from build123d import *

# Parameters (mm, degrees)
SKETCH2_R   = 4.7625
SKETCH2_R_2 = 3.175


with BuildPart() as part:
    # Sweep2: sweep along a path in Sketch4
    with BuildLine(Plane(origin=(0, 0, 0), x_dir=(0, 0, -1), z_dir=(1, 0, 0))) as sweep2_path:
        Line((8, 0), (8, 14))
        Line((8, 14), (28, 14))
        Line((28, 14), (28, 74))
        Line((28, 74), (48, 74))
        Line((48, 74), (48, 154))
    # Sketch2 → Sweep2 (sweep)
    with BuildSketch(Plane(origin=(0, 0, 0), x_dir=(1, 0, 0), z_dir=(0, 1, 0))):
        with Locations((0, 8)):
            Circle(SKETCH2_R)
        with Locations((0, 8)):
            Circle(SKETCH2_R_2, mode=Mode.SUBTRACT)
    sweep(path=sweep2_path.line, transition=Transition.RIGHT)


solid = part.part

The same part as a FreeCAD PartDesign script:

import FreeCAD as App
import Part
import Sketcher

doc = App.newDocument("Part")
body = doc.addObject("PartDesign::Body", "Body")

sketch1 = body.newObject("Sketcher::SketchObject", "Sketch")
sketch1.AttachmentSupport = (doc.getObject("XZ_Plane"), [""])
sketch1.MapMode = "FlatFace"
sketch1.addGeometry(Part.Circle(App.Vector(0, -8, 0), App.Vector(0, 0, 1), 4.8), False)
sketch1.addGeometry(Part.Circle(App.Vector(0, -8, 0), App.Vector(0, 0, 1), 3.2), False)
sketch1.addConstraint(Sketcher.Constraint("Coincident", 1, 3, 0, 3))
sketch1.addConstraint(Sketcher.Constraint("PointOnObject", 0, 3, -2))
sketch1.addConstraint(Sketcher.Constraint("Diameter", 1, 6.35))
sketch1.addConstraint(Sketcher.Constraint("Diameter", 0, 9.525))
sketch1.addConstraint(Sketcher.Constraint("DistanceY", 0, 3, -1, 1, 8.0))

sketch2 = body.newObject("Sketcher::SketchObject", "Sketch001")
sketch2.AttachmentSupport = (doc.getObject("YZ_Plane"), [""])
sketch2.MapMode = "FlatFace"
sketch2.addGeometry(Part.LineSegment(App.Vector(0, -8, 0), App.Vector(14, -8, 0)), False)
sketch2.addGeometry(Part.LineSegment(App.Vector(14, -8, 0), App.Vector(14, -28, 0)), False)
sketch2.addGeometry(Part.LineSegment(App.Vector(14, -28, 0), App.Vector(74, -28, 0)), False)
sketch2.addGeometry(Part.LineSegment(App.Vector(74, -28, 0), App.Vector(74, -48, 0)), False)
sketch2.addGeometry(Part.LineSegment(App.Vector(74, -48, 0), App.Vector(154, -48, 0)), False)
sketch2.addConstraint(Sketcher.Constraint("Coincident", 0, 2, 1, 1))
sketch2.addConstraint(Sketcher.Constraint("Coincident", 1, 2, 2, 1))
sketch2.addConstraint(Sketcher.Constraint("Coincident", 2, 2, 3, 1))
sketch2.addConstraint(Sketcher.Constraint("Coincident", 3, 2, 4, 1))
sketch2.addConstraint(Sketcher.Constraint("Horizontal", 0))
sketch2.addConstraint(Sketcher.Constraint("Vertical", 1))
sketch2.addConstraint(Sketcher.Constraint("Horizontal", 2))
sketch2.addConstraint(Sketcher.Constraint("Vertical", 3))
sketch2.addConstraint(Sketcher.Constraint("Horizontal", 4))
sketch2.addConstraint(Sketcher.Constraint("PointOnObject", 0, 1, -2))
sketch2.addConstraint(Sketcher.Constraint("Equal", 1, 3))
sketch2.addConstraint(Sketcher.Constraint("DistanceX", 0, 1, 0, 2, 14.0))
sketch2.addConstraint(Sketcher.Constraint("DistanceX", 2, 1, 2, 2, 60.0))
sketch2.addConstraint(Sketcher.Constraint("DistanceX", 4, 1, 4, 2, 80.0))
sketch2.addConstraint(Sketcher.Constraint("DistanceY", 1, 2, 1, 1, 20.0))
sketch2.addConstraint(Sketcher.Constraint("DistanceY", 0, 1, -1, 1, 8.0))
doc.recompute()

additivepipe = body.newObject("PartDesign::AdditivePipe", "AdditivePipe")
additivepipe.Profile = sketch1
additivepipe.Spine = (sketch2, ["Edge1", "Edge2", "Edge3", "Edge4", "Edge5"])
additivepipe.Transition = "Right corner"

doc.recompute()
